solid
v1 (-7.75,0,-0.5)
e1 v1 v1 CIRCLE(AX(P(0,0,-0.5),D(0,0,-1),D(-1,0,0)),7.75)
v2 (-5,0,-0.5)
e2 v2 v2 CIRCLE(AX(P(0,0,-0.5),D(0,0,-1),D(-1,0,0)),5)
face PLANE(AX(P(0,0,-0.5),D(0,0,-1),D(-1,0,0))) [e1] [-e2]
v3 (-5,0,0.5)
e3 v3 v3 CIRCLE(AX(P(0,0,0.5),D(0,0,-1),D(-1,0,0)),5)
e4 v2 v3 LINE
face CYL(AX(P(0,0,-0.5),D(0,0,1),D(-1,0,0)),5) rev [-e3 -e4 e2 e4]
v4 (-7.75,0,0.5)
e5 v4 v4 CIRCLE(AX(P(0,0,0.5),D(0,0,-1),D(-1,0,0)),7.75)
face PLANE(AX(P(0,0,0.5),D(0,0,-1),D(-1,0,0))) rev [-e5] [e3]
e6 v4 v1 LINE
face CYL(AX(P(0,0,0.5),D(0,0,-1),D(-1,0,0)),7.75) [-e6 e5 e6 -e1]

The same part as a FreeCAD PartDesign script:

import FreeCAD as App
import Part
import Sketcher

V = App.Vector
Q = App.Units.Quantity


def add_polygon(sketch, points):
    """Adds a closed chain of lines whose ends are joined by coincident constraints."""
    first, n = sketch.GeometryCount, len(points)
    for a, b in zip(points, points[1:] + points[:1]):
        sketch.addGeometry(Part.LineSegment(App.Vector(*a, 0), App.Vector(*b, 0)), False)
    for i in range(n):
        sketch.addConstraint(Sketcher.Constraint("Coincident", first + i, 2, first + (i + 1) % n, 1))

doc = App.newDocument("Part")
body = doc.addObject("PartDesign::Body", "Body")

sketch1 = body.newObject("Sketcher::SketchObject", "Sketch")
sketch1.AttachmentSupport = (doc.getObject("XZ_Plane"), [""])
sketch1.MapMode = "FlatFace"
add_polygon(sketch1, [(-7.75, 0.5), (-7.75, -0.5), (-5, -0.5), (-5, 0.5)])
sketch1.addConstraint([
    Sketcher.Constraint("Vertical", 0),
    Sketcher.Constraint("Horizontal", 1),
    Sketcher.Constraint("Vertical", 2),
    Sketcher.Constraint("Horizontal", 3),
    Sketcher.Constraint("DistanceY", 0, 2, 0, 1, Q("1 mm")),
    Sketcher.Constraint("DistanceX", 0, 2, -1, 1, Q("7.75 mm")),
    Sketcher.Constraint("DistanceX", 1, 2, -1, 1, Q("5 mm")),
    Sketcher.Constraint("DistanceY", 0, 2, -1, 1, Q("0.5 mm")),
])
revolution = body.newObject("PartDesign::Revolution", "Revolution")
revolution.Profile = sketch1
revolution.ReferenceAxis = (sketch1, ["V_Axis"])
revolution.Angle = 360

doc.recompute()
